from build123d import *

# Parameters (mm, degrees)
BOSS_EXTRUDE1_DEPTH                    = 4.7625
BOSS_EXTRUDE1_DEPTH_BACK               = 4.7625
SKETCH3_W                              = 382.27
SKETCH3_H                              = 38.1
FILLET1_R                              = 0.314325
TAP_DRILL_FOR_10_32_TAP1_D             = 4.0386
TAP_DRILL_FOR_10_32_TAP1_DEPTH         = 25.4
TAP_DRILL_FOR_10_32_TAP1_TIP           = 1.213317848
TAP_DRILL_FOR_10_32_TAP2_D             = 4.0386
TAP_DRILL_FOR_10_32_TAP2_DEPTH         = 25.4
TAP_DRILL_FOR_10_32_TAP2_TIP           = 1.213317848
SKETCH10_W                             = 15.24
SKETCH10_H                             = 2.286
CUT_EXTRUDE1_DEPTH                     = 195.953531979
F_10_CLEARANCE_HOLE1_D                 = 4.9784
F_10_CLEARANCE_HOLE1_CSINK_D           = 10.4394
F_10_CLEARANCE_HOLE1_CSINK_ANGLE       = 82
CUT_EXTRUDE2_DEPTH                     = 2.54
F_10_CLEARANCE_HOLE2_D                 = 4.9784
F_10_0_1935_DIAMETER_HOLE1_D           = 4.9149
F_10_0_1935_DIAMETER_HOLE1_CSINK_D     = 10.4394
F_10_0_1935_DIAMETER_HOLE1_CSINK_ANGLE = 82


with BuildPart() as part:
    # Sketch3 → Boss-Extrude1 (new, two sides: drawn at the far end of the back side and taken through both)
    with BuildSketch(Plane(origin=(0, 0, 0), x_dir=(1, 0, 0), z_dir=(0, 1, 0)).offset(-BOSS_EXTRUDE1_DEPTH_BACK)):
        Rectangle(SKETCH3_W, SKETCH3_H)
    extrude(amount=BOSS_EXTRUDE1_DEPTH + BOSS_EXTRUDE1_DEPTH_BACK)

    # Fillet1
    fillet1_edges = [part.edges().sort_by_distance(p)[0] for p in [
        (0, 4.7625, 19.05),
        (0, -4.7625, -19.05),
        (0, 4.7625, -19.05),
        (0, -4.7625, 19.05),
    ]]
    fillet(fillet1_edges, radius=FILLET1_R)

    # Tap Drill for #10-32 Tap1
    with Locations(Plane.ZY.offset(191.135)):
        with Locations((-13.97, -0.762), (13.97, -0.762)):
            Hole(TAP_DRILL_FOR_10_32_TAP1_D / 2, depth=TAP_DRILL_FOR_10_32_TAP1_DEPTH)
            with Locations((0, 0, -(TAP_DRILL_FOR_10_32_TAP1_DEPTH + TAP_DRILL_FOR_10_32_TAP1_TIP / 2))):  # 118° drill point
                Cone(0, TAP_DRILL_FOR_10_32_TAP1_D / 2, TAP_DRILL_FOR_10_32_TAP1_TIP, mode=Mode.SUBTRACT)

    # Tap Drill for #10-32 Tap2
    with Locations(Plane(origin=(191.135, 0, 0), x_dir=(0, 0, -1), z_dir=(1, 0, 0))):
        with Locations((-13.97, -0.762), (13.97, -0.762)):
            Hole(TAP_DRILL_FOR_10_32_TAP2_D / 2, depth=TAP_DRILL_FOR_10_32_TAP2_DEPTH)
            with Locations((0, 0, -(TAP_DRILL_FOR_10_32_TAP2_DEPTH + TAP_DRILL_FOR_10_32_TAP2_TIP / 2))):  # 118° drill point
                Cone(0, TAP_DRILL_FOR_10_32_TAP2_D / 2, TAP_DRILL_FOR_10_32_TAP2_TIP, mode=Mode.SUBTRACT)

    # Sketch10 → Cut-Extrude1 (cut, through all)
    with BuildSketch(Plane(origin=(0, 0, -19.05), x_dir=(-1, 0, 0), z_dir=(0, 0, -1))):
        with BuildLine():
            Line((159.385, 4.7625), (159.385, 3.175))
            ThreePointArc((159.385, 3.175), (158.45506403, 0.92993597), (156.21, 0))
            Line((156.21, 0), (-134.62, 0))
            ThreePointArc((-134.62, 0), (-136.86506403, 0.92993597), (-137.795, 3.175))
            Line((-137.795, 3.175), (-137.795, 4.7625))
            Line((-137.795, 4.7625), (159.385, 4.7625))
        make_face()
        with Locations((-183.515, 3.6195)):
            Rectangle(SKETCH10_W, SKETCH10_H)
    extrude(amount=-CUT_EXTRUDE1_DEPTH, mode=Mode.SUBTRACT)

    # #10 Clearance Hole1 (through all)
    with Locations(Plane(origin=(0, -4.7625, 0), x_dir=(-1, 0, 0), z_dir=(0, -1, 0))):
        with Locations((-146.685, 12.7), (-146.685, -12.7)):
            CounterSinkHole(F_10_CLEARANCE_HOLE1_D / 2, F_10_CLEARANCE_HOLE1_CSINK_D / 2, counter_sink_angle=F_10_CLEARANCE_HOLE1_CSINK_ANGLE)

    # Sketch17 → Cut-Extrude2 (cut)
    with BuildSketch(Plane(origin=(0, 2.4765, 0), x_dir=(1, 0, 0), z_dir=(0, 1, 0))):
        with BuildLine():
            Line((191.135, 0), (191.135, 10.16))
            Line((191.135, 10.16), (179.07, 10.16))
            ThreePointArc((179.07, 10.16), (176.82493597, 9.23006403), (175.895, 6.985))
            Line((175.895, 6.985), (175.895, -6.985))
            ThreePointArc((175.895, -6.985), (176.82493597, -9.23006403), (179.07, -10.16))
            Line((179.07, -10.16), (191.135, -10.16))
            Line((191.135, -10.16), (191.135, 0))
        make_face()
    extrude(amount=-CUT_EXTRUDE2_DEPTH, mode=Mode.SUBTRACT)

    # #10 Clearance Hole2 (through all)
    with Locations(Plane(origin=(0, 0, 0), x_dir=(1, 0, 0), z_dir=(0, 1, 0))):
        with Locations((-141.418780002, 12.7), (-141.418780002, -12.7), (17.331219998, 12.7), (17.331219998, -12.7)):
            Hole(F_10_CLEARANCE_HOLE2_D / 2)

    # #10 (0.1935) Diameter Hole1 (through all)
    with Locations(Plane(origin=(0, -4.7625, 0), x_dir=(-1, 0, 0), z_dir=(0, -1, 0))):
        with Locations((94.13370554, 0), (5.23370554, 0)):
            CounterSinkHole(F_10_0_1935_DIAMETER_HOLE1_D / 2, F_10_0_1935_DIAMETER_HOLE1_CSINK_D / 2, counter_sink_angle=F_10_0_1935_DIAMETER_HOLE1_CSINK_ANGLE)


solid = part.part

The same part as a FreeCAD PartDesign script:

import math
import FreeCAD as App
import Part
import Sketcher
from FreeCAD import Vector
Q = App.Units.Quantity


def edges_at(feature, points):
    """Names of the edges that pass closest to the given points."""
    edges = feature.Shape.Edges
    near = lambda p: min(range(len(edges)), key=lambda i: edges[i].distToShape(Part.Vertex(*p))[0])
    return sorted({f"Edge{near(p) + 1}" for p in points})


def add_polygon(sketch, points):
    """Adds a closed chain of lines whose ends are joined by coincident constraints."""
    first, n = sketch.GeometryCount, len(points)
    for a, b in zip(points, points[1:] + points[:1]):
        sketch.addGeometry(Part.LineSegment(App.Vector(*a, 0), App.Vector(*b, 0)), False)
    for i in range(n):
        sketch.addConstraint(Sketcher.Constraint("Coincident", first + i, 2, first + (i + 1) % n, 1))

doc = App.newDocument("Part")
body = doc.addObject("PartDesign::Body", "Body")

# Sketch on XZ plane
sketch1 = body.newObject("Sketcher::SketchObject", "Sketch")
sketch1.AttachmentSupport = (doc.getObject("XZ_Plane"), [""])
sketch1.MapMode = "FlatFace"
add_polygon(sketch1, [(-191, -19), (-191, 19), (191, 19), (191, -19)])  # lines 0-3
sketch1.addConstraint([
    Sketcher.Constraint("Vertical", 0),
    Sketcher.Constraint("Horizontal", 1),
    Sketcher.Constraint("Vertical", 2),
    Sketcher.Constraint("Horizontal", 3),
    Sketcher.Constraint("Symmetric", 0, 2, 2, 2, -1, 1),
    Sketcher.Constraint("DistanceY", 0, 1, 0, 2, Q("1.5 in")),
    Sketcher.Constraint("DistanceX", 1, 1, 1, 2, Q("15.05 in")),
])
pad1 = body.newObject("PartDesign::Pad", "Pad")
pad1.Profile = sketch1
pad1.Type = "TwoLengths"
pad1.Length = Q("0.1875 in")
pad1.Length2 = Q("0.1875 in")
pad1.Reversed = True
doc.recompute()

fillet = body.newObject("PartDesign::Fillet", "Fillet")
fillet.Base = (pad1, edges_at(pad1, [
    (0, 4.763, 19.05),
    (0, -4.763, -19.05),
    (0, 4.763, -19.05),
    (0, -4.763, 19.05),
]))
fillet.Radius = 0.314325

# Sketch on YZ plane
sketch2 = body.newObject("Sketcher::SketchObject", "Sketch001")
sketch2.AttachmentSupport = (doc.getObject("YZ_Plane"), [""])
sketch2.MapMode = "FlatFace"
sketch2.AttachmentOffset = App.Placement(Vector(0, 0, -7.525 * 25.4), App.Rotation())
sketch2.addGeometry([
    Part.Circle(Vector(-0.8, -14, 0), Vector(0, 0, 1), 2),
    Part.Circle(Vector(-0.8, 14, 0), Vector(0, 0, 1), 2),
], False)
sketch2.addConstraint([
    Sketcher.Constraint("Equal", 0, 1),
    Sketcher.Constraint("Symmetric", 0, 3, 1, 3, -1),
    Sketcher.Constraint("Diameter", 0, Q("0.159 in")),
    Sketcher.Constraint("DistanceY", 0, 3, 1, 3, Q("1.1 in")),
    Sketcher.Constraint("DistanceX", 0, 3, -1, 1, Q("0.03 in")),
])
doc.recompute()
hole = body.newObject("PartDesign::Hole", "Hole")
hole.Profile = sketch2
hole.ThreadType = "None"
hole.Diameter = Q("0.159 in")
hole.DepthType = "Dimension"
hole.Depth = Q("1 in")
hole.DrillPoint = "Angled"
hole.DrillPointAngle = 118
hole.Reversed = True

# Sketch on YZ plane
sketch3 = body.newObject("Sketcher::SketchObject", "Sketch002")
sketch3.AttachmentSupport = (doc.getObject("YZ_Plane"), [""])
sketch3.MapMode = "FlatFace"
sketch3.AttachmentOffset = App.Placement(Vector(0, 0, 7.525 * 25.4), App.Rotation())
sketch3.addGeometry([
    Part.Circle(Vector(-0.8, 14, 0), Vector(0, 0, 1), 2),
    Part.Circle(Vector(-0.8, -14, 0), Vector(0, 0, 1), 2),
], False)
sketch3.addConstraint([
    Sketcher.Constraint("Equal", 0, 1),
    Sketcher.Constraint("Symmetric", 0, 3, 1, 3, -1),
    Sketcher.Constraint("Diameter", 0, Q("0.159 in")),
    Sketcher.Constraint("DistanceY", 1, 3, 0, 3, Q("1.1 in")),
    Sketcher.Constraint("DistanceX", 0, 3, -1, 1, Q("0.03 in")),
])
doc.recompute()
hole2 = body.newObject("PartDesign::Hole", "Hole001")
hole2.Profile = sketch3
hole2.ThreadType = "None"
hole2.Diameter = Q("0.159 in")
hole2.DepthType = "Dimension"
hole2.Depth = Q("1 in")
hole2.DrillPoint = "Angled"
hole2.DrillPointAngle = 118

# Sketch on XY plane
sketch4 = body.newObject("Sketcher::SketchObject", "Sketch003")
sketch4.AttachmentSupport = (doc.getObject("XY_Plane"), [""])
sketch4.MapMode = "FlatFace"
sketch4.AttachmentOffset = App.Placement(Vector(0, 0, -0.75 * 25.4), App.Rotation())
sketch4.addGeometry(Part.LineSegment(Vector(-159.4, 3.2, 0), Vector(-159.4, 4.8, 0)), False)  # 0
sketch4.addGeometry(Part.LineSegment(Vector(-159.4, 4.8, 0), Vector(137.8, 4.8, 0)), False)  # 1
sketch4.addGeometry(Part.LineSegment(Vector(137.8, 4.8, 0), Vector(137.8, 3.2, 0)), False)  # 2
sketch4.addGeometry(Part.ArcOfCircle(Part.Circle(Vector(134.6, 3.2, 0), Vector(0, 0, 1), 3.2), math.radians(-90), math.radians(0)), False)  # 3
sketch4.addGeometry(Part.LineSegment(Vector(134.6, 0, 0), Vector(-156.2, 0, 0)), False)  # 4
sketch4.addGeometry(Part.ArcOfCircle(Part.Circle(Vector(-156.2, 3.2, 0), Vector(0, 0, 1), 3.2), math.radians(-180), math.radians(-90)), False)  # 5
add_polygon(sketch4, [(191.1, 4.8), (191.1, 2.5), (175.9, 2.5), (175.9, 4.8)])  # lines 6-9
sketch4.addConstraint([
    Sketcher.Constraint("Coincident", 0, 2, 1, 1),
    Sketcher.Constraint("Coincident", 1, 2, 2, 1),
    Sketcher.Constraint("Tangent", 2, 2, 3, 2),
    Sketcher.Constraint("Tangent", 3, 1, 4, 1),
    Sketcher.Constraint("Tangent", 4, 2, 5, 2),
    Sketcher.Constraint("Tangent", 5, 1, 0, 1),
    Sketcher.Constraint("Vertical", 0),
    Sketcher.Constraint("Horizontal", 1),
    Sketcher.Constraint("Vertical", 2),
    Sketcher.Constraint("Horizontal", 4),
    Sketcher.Constraint("Vertical", 6),
    Sketcher.Constraint("Horizontal", 7),
    Sketcher.Constraint("Vertical", 8),
    Sketcher.Constraint("Horizontal", 9),
    Sketcher.Constraint("Equal", 3, 5),
    Sketcher.Constraint("PointOnObject", 3, 1, -1),
    Sketcher.Constraint("Horizontal", 1, 2, 8, 2),
    Sketcher.Constraint("DistanceX", 1, 1, 1, 2, Q("11.7 in")),
    Sketcher.Constraint("DistanceX", 7, 2, 7, 1, Q("0.6 in")),
    Sketcher.Constraint("Radius", 3, Q("0.125 in")),
    Sketcher.Constraint("DistanceY", 6, 2, 6, 1, Q("0.09 in")),
    Sketcher.Constraint("DistanceX", -1, 1, 3, 3, Q("5.3 in")),
    Sketcher.Constraint("DistanceX", 2, 2, 6, 2, Q("2.1 in")),
    Sketcher.Constraint("DistanceY", 0, 1, 0, 2, Q("0.0625 in")),
])
pocket1 = body.newObject("PartDesign::Pocket", "Pocket")
pocket1.Profile = sketch4
pocket1.Type = "ThroughAll"
pocket1.Reversed = True

# Sketch on XZ plane
sketch5 = body.newObject("Sketcher::SketchObject", "Sketch004")
sketch5.AttachmentSupport = (doc.getObject("XZ_Plane"), [""])
sketch5.MapMode = "FlatFace"
sketch5.AttachmentOffset = App.Placement(Vector(0, 0, 0.1875 * 25.4), App.Rotation())
sketch5.addGeometry([
    Part.Circle(Vector(146.7, -12.7, 0), Vector(0, 0, 1), 2.5),
    Part.Circle(Vector(146.7, 12.7, 0), Vector(0, 0, 1), 2.5),
], False)
sketch5.addConstraint([
    Sketcher.Constraint("Equal", 0, 1),
    Sketcher.Constraint("Symmetric", 0, 3, 1, 3, -1),
    Sketcher.Constraint("Diameter", 0, Q("0.196 in")),
    Sketcher.Constraint("DistanceY", 0, 3, 1, 3, Q("1 in")),
    Sketcher.Constraint("DistanceX", -1, 1, 0, 3, Q("5.775 in")),
])
doc.recompute()
hole3 = body.newObject("PartDesign::Hole", "Hole002")
hole3.Profile = sketch5
hole3.ThreadType = "None"
hole3.Diameter = Q("0.196 in")
hole3.DepthType = "ThroughAll"
hole3.HoleCutType = "Countersink"
hole3.HoleCutDiameter = Q("0.411 in")
hole3.HoleCutCountersinkAngle = 82

# Sketch on XZ plane
sketch6 = body.newObject("Sketcher::SketchObject", "Sketch005")
sketch6.AttachmentSupport = (doc.getObject("XZ_Plane"), [""])
sketch6.MapMode = "FlatFace"
sketch6.AttachmentOffset = App.Placement(Vector(0, 0, -0.0975 * 25.4), App.Rotation())
sketch6.addGeometry([
    Part.LineSegment(Vector(191.1, -10.2, 0), Vector(179.1, -10.2, 0)),  # 0
    Part.ArcOfCircle(Part.Circle(Vector(179.1, -7, 0), Vector(0, 0, 1), 3.2), math.radians(-180), math.radians(-90)),  # 1
    Part.LineSegment(Vector(175.9, -7, 0), Vector(175.9, 7, 0)),  # 2
    Part.ArcOfCircle(Part.Circle(Vector(179.1, 7, 0), Vector(0, 0, 1), 3.2), math.radians(90), math.radians(180)),  # 3
    Part.LineSegment(Vector(179.1, 10.2, 0), Vector(191.1, 10.2, 0)),  # 4
    Part.LineSegment(Vector(191.1, 10.2, 0), Vector(191.1, -10.2, 0)),  # 5
], False)
sketch6.addConstraint([
    Sketcher.Constraint("Tangent", 0, 2, 1, 2),
    Sketcher.Constraint("Tangent", 1, 1, 2, 1),
    Sketcher.Constraint("Tangent", 2, 2, 3, 2),
    Sketcher.Constraint("Tangent", 3, 1, 4, 1),
    Sketcher.Constraint("Coincident", 4, 2, 5, 1),
    Sketcher.Constraint("Coincident", 5, 2, 0, 1),
    Sketcher.Constraint("Horizontal", 0),
    Sketcher.Constraint("Vertical", 2),
    Sketcher.Constraint("Horizontal", 4),
    Sketcher.Constraint("Vertical", 5),
    Sketcher.Constraint("Equal", 1, 3),
    Sketcher.Constraint("DistanceY", 5, 2, 5, 1, Q("0.8 in")),
    Sketcher.Constraint("Radius", 1, Q("0.125 in")),
    Sketcher.Constraint("DistanceY", 0, 2, -1, 1, Q("0.4 in")),
    Sketcher.Constraint("DistanceX", 2, 2, 4, 2, Q("0.6 in")),
    Sketcher.Constraint("DistanceX", -1, 1, 1, 3, Q("7.05 in")),
])
pocket2 = body.newObject("PartDesign::Pocket", "Pocket001")
pocket2.Profile = sketch6
pocket2.Length = Q("0.1 in")
pocket2.Reversed = True

# Sketch on XZ plane
sketch7 = body.newObject("Sketcher::SketchObject", "Sketch006")
sketch7.AttachmentSupport = (doc.getObject("XZ_Plane"), [""])
sketch7.MapMode = "FlatFace"
sketch7.addGeometry([
    Part.Circle(Vector(-141.4, -12.7, 0), Vector(0, 0, 1), 2.5),
    Part.Circle(Vector(-141.4, 12.7, 0), Vector(0, 0, 1), 2.5),
    Part.Circle(Vector(17.3, -12.7, 0), Vector(0, 0, 1), 2.5),
    Part.Circle(Vector(17.3, 12.7, 0), Vector(0, 0, 1), 2.5),
], False)
sketch7.addConstraint([
    Sketcher.Constraint("Equal", 0, 1),
    Sketcher.Constraint("Equal", 1, 2),
    Sketcher.Constraint("Equal", 2, 3),
    Sketcher.Constraint("Symmetric", 0, 3, 1, 3, -1),
    Sketcher.Constraint("Symmetric", 2, 3, 3, 3, -1),
    Sketcher.Constraint("Horizontal", 0, 3, 2, 3),
    Sketcher.Constraint("Diameter", 0, Q("0.196 in")),
    Sketcher.Constraint("DistanceY", 0, 3, 1, 3, Q("1 in")),
    Sketcher.Constraint("DistanceX", 0, 3, 2, 3, Q("6.25 in")),
    Sketcher.Constraint("DistanceX", 0, 3, -1, 1, 141.41878),
])
doc.recompute()
hole4 = body.newObject("PartDesign::Hole", "Hole003")
hole4.Profile = sketch7
hole4.ThreadType = "None"
hole4.Diameter = Q("0.196 in")
hole4.DepthType = "ThroughAll"
hole4.Reversed = True

# Sketch on XZ plane
sketch8 = body.newObject("Sketcher::SketchObject", "Sketch007")
sketch8.AttachmentSupport = (doc.getObject("XZ_Plane"), [""])
sketch8.MapMode = "FlatFace"
sketch8.AttachmentOffset = App.Placement(Vector(0, 0, 0.1875 * 25.4), App.Rotation())
sketch8.addGeometry([
    Part.Circle(Vector(-94.1, 0, 0), Vector(0, 0, 1), 2.5),
    Part.Circle(Vector(-5.2, 0, 0), Vector(0, 0, 1), 2.5),
], False)
sketch8.addConstraint([
    Sketcher.Constraint("Equal", 0, 1),
    Sketcher.Constraint("PointOnObject", 0, 3, -1),
    Sketcher.Constraint("PointOnObject", 1, 3, -1),
    Sketcher.Constraint("Diameter", 0, Q("0.1935 in")),
    Sketcher.Constraint("DistanceX", 0, 3, 1, 3, Q("3.5 in")),
    Sketcher.Constraint("DistanceX", 0, 3, -1, 1, 94.133706),
])
doc.recompute()
hole5 = body.newObject("PartDesign::Hole", "Hole004")
hole5.Profile = sketch8
hole5.ThreadType = "None"
hole5.Diameter = Q("0.1935 in")
hole5.DepthType = "ThroughAll"
hole5.HoleCutType = "Countersink"
hole5.HoleCutDiameter = Q("0.411 in")
hole5.HoleCutCountersinkAngle = 82

doc.recompute()
